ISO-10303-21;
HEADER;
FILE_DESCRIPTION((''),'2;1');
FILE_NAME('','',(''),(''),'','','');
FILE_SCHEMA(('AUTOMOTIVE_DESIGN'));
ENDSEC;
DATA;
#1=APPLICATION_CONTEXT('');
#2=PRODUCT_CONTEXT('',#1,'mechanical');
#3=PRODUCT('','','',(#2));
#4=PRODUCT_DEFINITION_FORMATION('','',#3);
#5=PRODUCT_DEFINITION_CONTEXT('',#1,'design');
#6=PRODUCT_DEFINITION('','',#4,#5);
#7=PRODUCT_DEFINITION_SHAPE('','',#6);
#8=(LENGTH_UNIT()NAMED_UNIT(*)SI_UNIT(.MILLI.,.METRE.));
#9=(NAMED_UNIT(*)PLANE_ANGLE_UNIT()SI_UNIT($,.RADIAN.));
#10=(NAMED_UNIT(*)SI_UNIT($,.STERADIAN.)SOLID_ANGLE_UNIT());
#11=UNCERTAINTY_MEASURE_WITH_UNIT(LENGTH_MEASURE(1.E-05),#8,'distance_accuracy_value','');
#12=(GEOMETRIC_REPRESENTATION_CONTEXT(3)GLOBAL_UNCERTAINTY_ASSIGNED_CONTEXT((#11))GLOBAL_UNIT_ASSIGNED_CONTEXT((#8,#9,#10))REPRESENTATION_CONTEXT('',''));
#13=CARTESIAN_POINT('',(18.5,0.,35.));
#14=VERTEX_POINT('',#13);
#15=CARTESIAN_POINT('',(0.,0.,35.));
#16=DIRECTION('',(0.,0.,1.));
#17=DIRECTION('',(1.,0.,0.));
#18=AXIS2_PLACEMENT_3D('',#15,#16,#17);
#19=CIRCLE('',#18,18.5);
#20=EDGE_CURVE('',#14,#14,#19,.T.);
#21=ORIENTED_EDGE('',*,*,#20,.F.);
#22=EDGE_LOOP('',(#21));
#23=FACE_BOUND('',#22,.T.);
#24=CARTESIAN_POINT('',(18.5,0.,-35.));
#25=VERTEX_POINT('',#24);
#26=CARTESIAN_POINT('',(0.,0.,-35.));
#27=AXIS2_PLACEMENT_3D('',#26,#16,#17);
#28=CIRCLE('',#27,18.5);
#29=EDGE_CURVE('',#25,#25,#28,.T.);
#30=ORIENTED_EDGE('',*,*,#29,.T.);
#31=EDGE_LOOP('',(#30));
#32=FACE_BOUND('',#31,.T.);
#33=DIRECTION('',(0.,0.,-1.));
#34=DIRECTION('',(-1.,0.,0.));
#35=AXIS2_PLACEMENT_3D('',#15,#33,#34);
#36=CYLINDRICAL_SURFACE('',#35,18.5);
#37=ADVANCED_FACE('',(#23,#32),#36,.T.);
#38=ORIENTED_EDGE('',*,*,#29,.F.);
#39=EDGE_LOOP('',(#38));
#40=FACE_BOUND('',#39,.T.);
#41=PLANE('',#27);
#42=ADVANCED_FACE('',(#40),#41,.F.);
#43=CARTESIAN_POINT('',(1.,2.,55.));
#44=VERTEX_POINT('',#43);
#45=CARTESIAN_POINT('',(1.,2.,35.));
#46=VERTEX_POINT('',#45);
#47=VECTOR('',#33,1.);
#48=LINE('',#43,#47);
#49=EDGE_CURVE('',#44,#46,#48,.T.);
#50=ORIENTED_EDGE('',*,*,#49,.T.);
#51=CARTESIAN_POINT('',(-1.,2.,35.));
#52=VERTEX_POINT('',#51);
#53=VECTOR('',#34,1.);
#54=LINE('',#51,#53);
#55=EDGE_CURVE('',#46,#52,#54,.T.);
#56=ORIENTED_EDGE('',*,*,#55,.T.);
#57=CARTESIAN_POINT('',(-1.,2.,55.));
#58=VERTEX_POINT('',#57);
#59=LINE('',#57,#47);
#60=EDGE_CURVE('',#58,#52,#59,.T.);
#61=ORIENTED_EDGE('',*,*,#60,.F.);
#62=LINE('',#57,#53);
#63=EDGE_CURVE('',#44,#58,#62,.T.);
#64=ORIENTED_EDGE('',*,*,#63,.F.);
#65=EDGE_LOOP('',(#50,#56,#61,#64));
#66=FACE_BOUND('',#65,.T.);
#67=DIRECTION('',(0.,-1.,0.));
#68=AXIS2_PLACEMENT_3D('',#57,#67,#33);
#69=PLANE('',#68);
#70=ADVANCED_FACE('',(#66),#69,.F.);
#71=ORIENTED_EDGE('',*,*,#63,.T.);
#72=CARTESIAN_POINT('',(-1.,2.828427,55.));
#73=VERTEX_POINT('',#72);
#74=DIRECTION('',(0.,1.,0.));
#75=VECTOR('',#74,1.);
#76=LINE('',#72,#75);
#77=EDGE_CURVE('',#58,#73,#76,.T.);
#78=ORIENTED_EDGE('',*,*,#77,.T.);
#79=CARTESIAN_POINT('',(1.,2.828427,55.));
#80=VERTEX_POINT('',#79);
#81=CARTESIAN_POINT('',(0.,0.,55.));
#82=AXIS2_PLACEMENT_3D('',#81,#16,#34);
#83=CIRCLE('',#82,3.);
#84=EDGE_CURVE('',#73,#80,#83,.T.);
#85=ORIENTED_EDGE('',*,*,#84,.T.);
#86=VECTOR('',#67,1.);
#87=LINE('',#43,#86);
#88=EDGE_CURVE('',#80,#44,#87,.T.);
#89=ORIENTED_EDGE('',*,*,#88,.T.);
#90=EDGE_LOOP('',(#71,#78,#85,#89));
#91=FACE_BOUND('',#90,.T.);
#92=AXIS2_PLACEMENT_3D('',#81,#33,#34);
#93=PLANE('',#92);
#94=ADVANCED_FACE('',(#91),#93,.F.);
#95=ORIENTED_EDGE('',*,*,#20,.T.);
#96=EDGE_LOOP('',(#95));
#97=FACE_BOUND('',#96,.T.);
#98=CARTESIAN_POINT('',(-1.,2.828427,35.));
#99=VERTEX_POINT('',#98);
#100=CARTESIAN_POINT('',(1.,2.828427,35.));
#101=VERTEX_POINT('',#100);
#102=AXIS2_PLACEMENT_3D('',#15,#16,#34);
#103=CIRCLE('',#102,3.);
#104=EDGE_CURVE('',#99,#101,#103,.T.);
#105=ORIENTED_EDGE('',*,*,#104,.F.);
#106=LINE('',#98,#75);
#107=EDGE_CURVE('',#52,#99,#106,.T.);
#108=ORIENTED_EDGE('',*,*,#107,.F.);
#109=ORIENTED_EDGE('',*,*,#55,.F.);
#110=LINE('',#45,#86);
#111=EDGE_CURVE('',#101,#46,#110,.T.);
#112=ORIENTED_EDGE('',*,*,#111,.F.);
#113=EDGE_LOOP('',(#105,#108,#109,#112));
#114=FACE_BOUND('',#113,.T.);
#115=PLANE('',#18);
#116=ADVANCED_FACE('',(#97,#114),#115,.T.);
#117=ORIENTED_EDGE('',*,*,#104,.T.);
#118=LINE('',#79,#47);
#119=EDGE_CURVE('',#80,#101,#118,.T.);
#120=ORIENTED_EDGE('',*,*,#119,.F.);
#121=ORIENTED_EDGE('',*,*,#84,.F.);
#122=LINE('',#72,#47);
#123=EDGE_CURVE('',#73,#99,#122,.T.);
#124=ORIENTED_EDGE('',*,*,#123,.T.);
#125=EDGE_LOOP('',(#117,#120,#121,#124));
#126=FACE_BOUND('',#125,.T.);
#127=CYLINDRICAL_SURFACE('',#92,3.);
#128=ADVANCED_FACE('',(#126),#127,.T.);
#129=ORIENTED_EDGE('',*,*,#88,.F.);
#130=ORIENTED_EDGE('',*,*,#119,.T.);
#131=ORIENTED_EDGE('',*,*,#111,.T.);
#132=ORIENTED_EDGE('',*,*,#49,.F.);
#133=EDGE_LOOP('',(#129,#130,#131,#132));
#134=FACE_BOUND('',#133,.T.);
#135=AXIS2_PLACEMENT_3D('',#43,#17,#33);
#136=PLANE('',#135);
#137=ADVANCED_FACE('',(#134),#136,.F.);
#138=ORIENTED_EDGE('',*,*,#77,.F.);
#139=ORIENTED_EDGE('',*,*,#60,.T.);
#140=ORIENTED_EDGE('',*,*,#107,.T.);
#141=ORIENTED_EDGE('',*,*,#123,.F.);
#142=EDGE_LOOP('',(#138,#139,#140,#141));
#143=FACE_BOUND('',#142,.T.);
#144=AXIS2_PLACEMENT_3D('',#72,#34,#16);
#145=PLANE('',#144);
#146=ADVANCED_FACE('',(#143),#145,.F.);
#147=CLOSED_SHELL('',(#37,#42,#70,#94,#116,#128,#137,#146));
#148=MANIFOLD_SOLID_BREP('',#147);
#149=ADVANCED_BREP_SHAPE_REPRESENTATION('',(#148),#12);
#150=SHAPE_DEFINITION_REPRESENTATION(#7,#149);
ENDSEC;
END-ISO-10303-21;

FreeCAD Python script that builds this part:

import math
import FreeCAD as App
import Part
import Sketcher
Q = App.Units.Quantity

doc = App.newDocument("Part")
body = doc.addObject("PartDesign::Body", "Body")

# Sketch on XY plane
sketch1 = body.newObject("Sketcher::SketchObject", "Sketch")
sketch1.AttachmentSupport = (doc.getObject("XY_Plane"), [""])
sketch1.MapMode = "FlatFace"
sketch1.addGeometry(Part.Circle(App.Vector(0, 0, 0), App.Vector(0, 0, 1), 18), False)
sketch1.addConstraint(Sketcher.Constraint("Coincident", 0, 3, -1, 1))
sketch1.addConstraint(Sketcher.Constraint("Diameter", 0, Q("37 mm")))
pad1 = body.newObject("PartDesign::Pad", "Pad")
pad1.Profile = sketch1
pad1.Length = 70
pad1.Midplane = True

# Sketch on XY plane
sketch2 = body.newObject("Sketcher::SketchObject", "Sketch001")
sketch2.AttachmentSupport = (doc.getObject("XY_Plane"), [""])
sketch2.MapMode = "FlatFace"
sketch2.AttachmentOffset = App.Placement(App.Vector(0, 0, 35), App.Rotation())
sketch2.addGeometry(Part.LineSegment(App.Vector(-1, 2, 0), App.Vector(-1, 2.8, 0)), False)
sketch2.addGeometry(Part.ArcOfCircle(Part.Circle(App.Vector(0, 0, 0), App.Vector(0, 0, 1), 3), math.radians(109), math.radians(431)), False)
sketch2.addGeometry(Part.LineSegment(App.Vector(1, 2.8, 0), App.Vector(1, 2, 0)), False)
sketch2.addGeometry(Part.LineSegment(App.Vector(1, 2, 0), App.Vector(-1, 2, 0)), False)
sketch2.addConstraint(Sketcher.Constraint("Coincident", 0, 2, 1, 1))
sketch2.addConstraint(Sketcher.Constraint("Coincident", 1, 2, 2, 1))
sketch2.addConstraint(Sketcher.Constraint("Coincident", 2, 2, 3, 1))
sketch2.addConstraint(Sketcher.Constraint("Coincident", 3, 2, 0, 1))
sketch2.addConstraint(Sketcher.Constraint("Vertical", 0))
sketch2.addConstraint(Sketcher.Constraint("Vertical", 2))
sketch2.addConstraint(Sketcher.Constraint("Horizontal", 3))
sketch2.addConstraint(Sketcher.Constraint("Coincident", 1, 3, -1, 1))
sketch2.addConstraint(Sketcher.Constraint("Horizontal", 0, 2, 1, 2))
sketch2.addConstraint(Sketcher.Constraint("Radius", 1, Q("3 mm")))
sketch2.addConstraint(Sketcher.Constraint("DistanceX", 3, 2, 3, 1, Q("2 mm")))
sketch2.addConstraint(Sketcher.Constraint("DistanceY", -1, 1, 2, 2, Q("2 mm")))
pad2 = body.newObject("PartDesign::Pad", "Pad001")
pad2.Profile = sketch2
pad2.Length = 20

doc.recompute()
